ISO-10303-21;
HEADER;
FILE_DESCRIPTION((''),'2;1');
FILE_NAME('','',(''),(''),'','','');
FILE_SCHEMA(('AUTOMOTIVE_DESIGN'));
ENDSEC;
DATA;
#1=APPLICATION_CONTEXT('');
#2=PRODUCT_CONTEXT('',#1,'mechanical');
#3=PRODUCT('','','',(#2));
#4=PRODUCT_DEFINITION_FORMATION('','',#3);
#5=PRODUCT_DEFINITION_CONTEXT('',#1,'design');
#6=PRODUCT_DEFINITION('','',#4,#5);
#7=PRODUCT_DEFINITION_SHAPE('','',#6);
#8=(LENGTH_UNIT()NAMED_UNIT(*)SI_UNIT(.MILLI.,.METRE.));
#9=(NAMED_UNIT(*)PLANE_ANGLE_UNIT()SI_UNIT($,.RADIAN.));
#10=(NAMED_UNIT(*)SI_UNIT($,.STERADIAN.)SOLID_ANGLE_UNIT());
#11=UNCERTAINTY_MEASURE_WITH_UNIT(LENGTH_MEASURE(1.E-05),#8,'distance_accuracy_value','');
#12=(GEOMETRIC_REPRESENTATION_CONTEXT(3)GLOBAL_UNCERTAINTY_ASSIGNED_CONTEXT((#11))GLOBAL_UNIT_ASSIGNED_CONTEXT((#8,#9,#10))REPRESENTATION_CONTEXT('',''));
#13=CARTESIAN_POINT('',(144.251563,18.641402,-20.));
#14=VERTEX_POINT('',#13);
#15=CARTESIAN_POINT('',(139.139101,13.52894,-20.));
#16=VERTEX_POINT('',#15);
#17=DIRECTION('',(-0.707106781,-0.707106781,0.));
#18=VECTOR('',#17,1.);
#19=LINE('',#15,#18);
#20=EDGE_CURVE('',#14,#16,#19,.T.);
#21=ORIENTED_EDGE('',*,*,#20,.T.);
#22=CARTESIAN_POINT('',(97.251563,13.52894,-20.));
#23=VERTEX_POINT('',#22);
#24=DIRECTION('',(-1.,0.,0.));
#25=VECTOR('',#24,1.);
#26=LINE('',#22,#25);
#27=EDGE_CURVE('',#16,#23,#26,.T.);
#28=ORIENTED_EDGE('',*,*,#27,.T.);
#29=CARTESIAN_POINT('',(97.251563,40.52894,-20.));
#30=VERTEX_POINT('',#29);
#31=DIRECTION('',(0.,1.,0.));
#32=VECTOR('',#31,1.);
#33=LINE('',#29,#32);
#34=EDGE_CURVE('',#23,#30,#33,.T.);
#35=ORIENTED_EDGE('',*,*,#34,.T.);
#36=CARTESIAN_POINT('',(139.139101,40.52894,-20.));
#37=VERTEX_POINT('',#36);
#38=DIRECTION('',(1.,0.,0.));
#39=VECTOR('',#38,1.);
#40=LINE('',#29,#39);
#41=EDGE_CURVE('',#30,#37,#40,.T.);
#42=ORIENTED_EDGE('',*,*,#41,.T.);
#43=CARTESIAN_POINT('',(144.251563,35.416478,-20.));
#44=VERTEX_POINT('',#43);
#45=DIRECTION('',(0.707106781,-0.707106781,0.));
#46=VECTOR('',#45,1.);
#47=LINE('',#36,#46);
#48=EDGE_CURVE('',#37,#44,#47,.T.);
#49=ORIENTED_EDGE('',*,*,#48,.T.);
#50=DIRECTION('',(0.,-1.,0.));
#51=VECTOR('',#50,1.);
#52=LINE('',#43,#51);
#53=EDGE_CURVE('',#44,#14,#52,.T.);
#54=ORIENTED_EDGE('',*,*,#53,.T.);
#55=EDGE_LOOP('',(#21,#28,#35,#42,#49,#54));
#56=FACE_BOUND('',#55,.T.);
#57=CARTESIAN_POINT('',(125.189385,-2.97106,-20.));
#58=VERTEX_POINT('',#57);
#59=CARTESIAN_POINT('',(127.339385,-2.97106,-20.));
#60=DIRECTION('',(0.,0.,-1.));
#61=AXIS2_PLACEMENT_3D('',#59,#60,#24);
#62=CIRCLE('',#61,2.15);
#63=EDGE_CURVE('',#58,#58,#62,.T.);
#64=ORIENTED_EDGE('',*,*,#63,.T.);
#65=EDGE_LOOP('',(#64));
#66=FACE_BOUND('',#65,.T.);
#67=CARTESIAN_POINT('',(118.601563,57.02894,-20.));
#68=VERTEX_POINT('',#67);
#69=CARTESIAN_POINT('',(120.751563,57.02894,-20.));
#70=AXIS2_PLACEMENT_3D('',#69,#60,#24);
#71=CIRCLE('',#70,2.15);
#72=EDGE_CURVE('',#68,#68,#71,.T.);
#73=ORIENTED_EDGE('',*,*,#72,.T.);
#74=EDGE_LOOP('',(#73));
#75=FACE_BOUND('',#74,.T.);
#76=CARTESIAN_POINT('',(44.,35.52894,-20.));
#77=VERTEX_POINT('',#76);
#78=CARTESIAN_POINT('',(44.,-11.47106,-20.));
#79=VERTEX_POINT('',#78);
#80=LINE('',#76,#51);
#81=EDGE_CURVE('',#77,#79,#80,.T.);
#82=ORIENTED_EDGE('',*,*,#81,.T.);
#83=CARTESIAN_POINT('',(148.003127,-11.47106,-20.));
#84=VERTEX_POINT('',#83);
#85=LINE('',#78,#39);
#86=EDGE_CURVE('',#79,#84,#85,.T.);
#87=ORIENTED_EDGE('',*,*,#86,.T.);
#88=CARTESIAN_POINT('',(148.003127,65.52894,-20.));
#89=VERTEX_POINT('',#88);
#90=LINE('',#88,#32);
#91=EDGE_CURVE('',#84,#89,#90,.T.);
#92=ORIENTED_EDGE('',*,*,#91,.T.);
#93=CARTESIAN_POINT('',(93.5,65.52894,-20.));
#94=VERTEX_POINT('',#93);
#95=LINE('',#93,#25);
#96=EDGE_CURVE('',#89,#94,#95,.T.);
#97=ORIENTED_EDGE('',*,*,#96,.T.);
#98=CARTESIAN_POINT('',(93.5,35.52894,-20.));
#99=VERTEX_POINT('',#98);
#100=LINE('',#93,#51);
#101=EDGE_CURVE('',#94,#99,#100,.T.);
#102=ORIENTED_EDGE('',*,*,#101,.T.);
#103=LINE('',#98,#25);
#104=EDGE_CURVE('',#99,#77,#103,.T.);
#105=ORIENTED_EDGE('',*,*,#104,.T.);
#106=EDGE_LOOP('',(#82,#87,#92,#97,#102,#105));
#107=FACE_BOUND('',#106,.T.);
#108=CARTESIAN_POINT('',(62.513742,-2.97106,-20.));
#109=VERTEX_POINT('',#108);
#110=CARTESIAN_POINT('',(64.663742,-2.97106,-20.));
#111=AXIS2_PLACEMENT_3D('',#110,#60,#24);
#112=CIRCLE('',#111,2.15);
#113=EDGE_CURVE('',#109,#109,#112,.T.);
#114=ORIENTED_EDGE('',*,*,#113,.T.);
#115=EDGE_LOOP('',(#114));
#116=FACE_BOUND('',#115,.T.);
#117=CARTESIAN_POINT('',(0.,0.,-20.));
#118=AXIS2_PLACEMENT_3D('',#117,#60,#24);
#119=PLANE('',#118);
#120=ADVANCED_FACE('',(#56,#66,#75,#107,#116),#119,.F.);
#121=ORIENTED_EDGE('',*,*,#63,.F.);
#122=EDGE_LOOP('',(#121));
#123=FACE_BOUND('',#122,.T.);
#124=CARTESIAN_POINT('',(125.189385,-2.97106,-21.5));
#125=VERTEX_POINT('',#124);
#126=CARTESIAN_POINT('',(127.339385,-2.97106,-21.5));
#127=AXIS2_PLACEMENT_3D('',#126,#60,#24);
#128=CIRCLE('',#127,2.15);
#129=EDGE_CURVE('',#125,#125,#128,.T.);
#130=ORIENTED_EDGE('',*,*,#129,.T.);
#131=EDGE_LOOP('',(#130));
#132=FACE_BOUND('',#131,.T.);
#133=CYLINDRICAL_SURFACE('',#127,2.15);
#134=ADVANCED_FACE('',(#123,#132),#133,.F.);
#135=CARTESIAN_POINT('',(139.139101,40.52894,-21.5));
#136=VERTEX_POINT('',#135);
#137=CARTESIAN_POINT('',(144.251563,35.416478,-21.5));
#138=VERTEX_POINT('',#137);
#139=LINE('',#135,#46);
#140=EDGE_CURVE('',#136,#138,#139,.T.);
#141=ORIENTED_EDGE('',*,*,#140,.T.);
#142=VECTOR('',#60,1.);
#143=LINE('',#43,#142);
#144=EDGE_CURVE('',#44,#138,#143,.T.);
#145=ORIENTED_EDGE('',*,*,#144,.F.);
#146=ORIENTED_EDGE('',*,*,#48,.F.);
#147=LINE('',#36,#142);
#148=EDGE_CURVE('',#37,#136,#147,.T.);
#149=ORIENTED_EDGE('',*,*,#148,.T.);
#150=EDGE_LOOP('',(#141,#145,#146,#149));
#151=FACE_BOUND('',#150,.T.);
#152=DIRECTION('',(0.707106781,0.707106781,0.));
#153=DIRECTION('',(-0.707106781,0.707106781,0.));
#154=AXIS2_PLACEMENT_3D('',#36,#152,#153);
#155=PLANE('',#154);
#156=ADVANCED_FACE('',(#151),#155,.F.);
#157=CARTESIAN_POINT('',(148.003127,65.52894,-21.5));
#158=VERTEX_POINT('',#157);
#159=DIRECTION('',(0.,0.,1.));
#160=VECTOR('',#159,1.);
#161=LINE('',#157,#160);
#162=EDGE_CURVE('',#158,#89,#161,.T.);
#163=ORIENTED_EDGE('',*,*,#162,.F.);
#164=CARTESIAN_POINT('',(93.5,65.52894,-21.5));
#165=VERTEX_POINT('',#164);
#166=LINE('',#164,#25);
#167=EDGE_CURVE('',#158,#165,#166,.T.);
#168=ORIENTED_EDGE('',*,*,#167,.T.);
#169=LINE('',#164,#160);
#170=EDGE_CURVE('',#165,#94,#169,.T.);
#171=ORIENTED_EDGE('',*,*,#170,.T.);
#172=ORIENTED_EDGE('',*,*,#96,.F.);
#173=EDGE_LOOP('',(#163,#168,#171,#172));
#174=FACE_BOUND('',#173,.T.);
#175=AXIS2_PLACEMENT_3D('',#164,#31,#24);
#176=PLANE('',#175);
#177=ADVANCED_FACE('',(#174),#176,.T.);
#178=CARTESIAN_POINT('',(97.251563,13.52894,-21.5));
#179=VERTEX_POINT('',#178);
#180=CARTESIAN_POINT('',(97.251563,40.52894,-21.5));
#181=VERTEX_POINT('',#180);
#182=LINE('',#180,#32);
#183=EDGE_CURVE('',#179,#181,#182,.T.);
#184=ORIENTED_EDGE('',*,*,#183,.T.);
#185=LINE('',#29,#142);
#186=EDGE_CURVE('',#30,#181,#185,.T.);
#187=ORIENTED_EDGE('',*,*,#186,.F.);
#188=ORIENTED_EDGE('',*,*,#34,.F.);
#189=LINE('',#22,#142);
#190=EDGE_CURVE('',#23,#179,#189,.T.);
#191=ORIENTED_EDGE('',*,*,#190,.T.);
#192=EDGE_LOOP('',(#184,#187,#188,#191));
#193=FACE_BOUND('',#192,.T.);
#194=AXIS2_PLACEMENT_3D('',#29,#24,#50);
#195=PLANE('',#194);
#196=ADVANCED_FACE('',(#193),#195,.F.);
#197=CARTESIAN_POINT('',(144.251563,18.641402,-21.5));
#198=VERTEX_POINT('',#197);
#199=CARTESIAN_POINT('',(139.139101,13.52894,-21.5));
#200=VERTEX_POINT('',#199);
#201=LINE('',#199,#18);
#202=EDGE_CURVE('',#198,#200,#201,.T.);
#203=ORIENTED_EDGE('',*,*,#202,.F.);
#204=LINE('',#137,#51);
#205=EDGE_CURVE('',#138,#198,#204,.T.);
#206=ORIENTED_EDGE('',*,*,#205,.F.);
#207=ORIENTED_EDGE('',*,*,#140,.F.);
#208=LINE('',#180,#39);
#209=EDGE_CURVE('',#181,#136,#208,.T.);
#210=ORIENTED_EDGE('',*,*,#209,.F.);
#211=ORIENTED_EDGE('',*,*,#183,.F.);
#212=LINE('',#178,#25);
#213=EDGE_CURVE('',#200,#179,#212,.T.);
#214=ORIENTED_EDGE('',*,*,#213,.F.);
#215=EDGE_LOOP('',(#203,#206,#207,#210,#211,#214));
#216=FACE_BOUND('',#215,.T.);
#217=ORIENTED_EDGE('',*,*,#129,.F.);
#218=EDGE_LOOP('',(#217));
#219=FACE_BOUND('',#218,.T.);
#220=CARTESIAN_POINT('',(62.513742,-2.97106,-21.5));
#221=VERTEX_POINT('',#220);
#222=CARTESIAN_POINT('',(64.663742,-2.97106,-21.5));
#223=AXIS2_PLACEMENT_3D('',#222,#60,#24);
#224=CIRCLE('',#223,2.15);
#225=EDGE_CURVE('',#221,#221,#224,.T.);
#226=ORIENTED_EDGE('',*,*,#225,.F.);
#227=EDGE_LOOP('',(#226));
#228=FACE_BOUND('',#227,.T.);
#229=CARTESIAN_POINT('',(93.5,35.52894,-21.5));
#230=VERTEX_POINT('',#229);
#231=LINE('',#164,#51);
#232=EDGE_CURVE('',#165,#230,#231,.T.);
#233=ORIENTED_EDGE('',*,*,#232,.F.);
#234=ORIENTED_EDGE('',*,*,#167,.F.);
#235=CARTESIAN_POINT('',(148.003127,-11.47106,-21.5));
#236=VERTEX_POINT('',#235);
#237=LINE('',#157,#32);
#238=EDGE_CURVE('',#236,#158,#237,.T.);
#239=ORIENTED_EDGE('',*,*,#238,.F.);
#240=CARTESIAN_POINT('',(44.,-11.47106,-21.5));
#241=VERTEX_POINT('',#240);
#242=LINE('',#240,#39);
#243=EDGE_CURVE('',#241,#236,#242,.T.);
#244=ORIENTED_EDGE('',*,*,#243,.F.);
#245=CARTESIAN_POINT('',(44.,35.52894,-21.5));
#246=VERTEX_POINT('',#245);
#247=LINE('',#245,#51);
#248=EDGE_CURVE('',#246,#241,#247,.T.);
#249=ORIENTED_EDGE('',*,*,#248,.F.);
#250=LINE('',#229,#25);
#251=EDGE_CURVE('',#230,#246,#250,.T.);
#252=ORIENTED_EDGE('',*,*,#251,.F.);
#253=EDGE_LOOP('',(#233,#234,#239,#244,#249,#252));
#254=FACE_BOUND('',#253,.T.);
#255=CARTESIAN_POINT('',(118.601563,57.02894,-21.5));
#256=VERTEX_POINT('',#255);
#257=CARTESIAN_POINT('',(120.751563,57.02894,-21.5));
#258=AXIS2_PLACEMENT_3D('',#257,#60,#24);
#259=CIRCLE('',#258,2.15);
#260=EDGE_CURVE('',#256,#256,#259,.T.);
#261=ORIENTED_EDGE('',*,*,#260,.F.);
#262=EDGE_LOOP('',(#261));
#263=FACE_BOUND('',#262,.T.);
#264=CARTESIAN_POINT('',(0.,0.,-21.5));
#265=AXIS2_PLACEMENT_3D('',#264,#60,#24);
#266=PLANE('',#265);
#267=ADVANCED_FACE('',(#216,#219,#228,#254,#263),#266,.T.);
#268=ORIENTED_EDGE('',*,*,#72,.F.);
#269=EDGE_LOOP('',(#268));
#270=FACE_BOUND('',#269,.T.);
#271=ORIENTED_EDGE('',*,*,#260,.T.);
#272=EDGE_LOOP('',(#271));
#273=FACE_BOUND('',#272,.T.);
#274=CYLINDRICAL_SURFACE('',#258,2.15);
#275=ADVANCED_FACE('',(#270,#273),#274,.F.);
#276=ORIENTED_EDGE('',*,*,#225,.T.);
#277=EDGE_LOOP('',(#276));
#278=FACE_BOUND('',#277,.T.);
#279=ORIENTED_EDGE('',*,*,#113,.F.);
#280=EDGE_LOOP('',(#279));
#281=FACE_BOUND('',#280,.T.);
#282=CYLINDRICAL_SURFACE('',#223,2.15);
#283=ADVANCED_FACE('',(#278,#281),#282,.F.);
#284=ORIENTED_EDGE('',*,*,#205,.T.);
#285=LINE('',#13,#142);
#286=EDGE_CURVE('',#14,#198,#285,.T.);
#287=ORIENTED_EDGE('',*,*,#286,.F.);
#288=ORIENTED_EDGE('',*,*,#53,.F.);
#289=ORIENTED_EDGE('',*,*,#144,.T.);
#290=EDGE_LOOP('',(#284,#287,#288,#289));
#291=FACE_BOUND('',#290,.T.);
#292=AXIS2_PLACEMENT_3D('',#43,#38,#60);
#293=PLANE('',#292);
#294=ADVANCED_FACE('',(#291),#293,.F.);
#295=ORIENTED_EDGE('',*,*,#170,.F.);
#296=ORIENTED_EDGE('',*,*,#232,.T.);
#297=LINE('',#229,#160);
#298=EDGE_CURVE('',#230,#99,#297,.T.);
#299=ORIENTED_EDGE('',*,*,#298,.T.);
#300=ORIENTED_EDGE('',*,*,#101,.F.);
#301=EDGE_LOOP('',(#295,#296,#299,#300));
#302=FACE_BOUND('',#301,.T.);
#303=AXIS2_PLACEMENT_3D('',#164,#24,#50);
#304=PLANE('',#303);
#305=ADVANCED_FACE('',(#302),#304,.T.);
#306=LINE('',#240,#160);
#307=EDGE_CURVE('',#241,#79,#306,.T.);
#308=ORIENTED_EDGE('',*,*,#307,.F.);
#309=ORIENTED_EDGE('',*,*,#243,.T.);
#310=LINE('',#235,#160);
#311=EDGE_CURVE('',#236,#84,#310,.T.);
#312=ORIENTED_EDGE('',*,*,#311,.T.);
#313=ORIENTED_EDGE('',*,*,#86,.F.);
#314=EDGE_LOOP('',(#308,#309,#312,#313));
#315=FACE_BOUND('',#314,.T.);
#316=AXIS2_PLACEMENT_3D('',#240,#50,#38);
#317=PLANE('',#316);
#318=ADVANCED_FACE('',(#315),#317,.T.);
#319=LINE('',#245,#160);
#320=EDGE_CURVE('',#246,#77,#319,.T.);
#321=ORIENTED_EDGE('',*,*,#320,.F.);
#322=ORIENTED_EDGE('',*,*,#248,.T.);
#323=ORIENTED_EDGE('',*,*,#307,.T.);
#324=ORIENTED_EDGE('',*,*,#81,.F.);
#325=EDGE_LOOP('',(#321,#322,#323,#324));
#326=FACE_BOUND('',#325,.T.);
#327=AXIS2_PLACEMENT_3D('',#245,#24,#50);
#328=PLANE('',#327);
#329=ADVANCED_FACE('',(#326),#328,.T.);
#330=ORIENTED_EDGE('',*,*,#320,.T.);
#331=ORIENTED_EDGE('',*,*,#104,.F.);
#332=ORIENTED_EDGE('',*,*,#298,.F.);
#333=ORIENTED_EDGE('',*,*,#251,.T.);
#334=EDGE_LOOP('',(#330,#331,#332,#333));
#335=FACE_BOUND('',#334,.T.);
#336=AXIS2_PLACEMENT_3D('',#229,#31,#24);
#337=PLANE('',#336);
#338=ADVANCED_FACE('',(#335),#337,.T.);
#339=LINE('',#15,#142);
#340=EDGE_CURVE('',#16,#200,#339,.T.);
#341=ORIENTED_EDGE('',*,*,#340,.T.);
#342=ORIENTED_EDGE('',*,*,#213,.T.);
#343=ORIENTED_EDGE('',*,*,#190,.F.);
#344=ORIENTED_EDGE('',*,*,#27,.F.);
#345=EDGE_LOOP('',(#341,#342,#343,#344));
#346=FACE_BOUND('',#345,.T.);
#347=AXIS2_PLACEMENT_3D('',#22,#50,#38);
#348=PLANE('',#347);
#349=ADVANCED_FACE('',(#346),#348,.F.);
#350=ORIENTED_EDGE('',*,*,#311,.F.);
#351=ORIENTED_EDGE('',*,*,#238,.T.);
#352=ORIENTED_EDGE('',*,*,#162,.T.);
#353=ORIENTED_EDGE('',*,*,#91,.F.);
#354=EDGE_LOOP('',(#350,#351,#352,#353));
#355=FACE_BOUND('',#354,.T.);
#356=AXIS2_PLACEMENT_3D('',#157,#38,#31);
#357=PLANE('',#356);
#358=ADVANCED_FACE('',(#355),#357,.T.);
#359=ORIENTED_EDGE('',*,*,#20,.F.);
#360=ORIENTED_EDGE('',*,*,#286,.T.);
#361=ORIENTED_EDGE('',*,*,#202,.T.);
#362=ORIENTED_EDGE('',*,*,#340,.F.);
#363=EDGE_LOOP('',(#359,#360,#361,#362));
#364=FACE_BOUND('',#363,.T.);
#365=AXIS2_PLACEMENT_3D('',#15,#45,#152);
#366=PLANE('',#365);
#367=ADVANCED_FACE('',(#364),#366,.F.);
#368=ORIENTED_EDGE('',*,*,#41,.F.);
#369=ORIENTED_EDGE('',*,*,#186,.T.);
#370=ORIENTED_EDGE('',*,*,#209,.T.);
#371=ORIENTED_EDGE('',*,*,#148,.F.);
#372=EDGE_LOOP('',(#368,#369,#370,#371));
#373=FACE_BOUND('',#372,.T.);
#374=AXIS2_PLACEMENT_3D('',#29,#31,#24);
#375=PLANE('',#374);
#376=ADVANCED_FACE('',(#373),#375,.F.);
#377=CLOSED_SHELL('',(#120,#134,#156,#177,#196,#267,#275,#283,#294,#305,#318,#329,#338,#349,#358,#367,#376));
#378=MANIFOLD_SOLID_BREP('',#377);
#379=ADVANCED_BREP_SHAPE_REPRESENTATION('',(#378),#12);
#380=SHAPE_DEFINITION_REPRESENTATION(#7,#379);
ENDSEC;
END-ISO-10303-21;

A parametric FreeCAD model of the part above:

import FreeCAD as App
import Part
import Sketcher


def add_polygon(sketch, points):
    """Adds a closed chain of lines whose ends are joined by coincident constraints."""
    first, n = sketch.GeometryCount, len(points)
    for a, b in zip(points, points[1:] + points[:1]):
        sketch.addGeometry(Part.LineSegment(App.Vector(*a, 0), App.Vector(*b, 0)), False)
    for i in range(n):
        sketch.addConstraint(Sketcher.Constraint("Coincident", first + i, 2, first + (i + 1) % n, 1))

doc = App.newDocument("Part")
body = doc.addObject("PartDesign::Body", "Body")

# Sketch on XY plane
sketch1 = body.newObject("Sketcher::SketchObject", "Sketch")
sketch1.AttachmentSupport = (doc.getObject("XY_Plane"), [""])
sketch1.MapMode = "FlatFace"
sketch1.AttachmentOffset = App.Placement(App.Vector(0, 0, -20), App.Rotation())
add_polygon(sketch1, [(148, -11), (148, 66), (93, 66), (93, 36), (44, 36), (44, -11)])  # lines 0-5
sketch1.addConstraint([
    Sketcher.Constraint("Vertical", 0),
    Sketcher.Constraint("Horizontal", 1),
    Sketcher.Constraint("Vertical", 2),
    Sketcher.Constraint("Horizontal", 3),
    Sketcher.Constraint("Vertical", 4),
    Sketcher.Constraint("Horizontal", 5),
    Sketcher.Constraint("DistanceY", 0, 1, 0, 2, 77.0),
    Sketcher.Constraint("DistanceY", 2, 2, 2, 1, 30.0),
    Sketcher.Constraint("DistanceX", 3, 2, 3, 1, 49.5),
    Sketcher.Constraint("DistanceX", -1, 1, 3, 2, 44.0),
    Sketcher.Constraint("DistanceX", 1, 2, 1, 1, 54.503127),
    Sketcher.Constraint("DistanceY", -1, 1, 0, 2, 65.52894),
])
pad1 = body.newObject("PartDesign::Pad", "Pad")
pad1.Profile = sketch1
pad1.Length = 1.5
pad1.Reversed = True

# Sketch on XY plane
sketch2 = body.newObject("Sketcher::SketchObject", "Sketch001")
sketch2.AttachmentSupport = (doc.getObject("XY_Plane"), [""])
sketch2.MapMode = "FlatFace"
sketch2.AttachmentOffset = App.Placement(App.Vector(0, 0, -21.5), App.Rotation())
sketch2.addGeometry([
    Part.Circle(App.Vector(120.8, 57, 0), App.Vector(0, 0, 1), 2.1),
    Part.Circle(App.Vector(127.3, -3, 0), App.Vector(0, 0, 1), 2.1),
    Part.Circle(App.Vector(64.7, -3, 0), App.Vector(0, 0, 1), 2.1),
], False)
sketch2.addConstraint([
    Sketcher.Constraint("Equal", 0, 1),
    Sketcher.Constraint("Equal", 1, 2),
    Sketcher.Constraint("Horizontal", 1, 3, 2, 3),
    Sketcher.Constraint("Diameter", 0, 4.3),
    Sketcher.Constraint("DistanceY", 1, 3, 0, 3, 60.0),
    Sketcher.Constraint("DistanceY", -1, 1, 0, 3, 57.02894),
    Sketcher.Constraint("DistanceX", -1, 1, 2, 3, 64.663742),
    Sketcher.Constraint("DistanceX", 0, 3, 1, 3, 6.587822),
    Sketcher.Constraint("DistanceX", 2, 3, 0, 3, 56.087822),
])
doc.recompute()
hole = body.newObject("PartDesign::Hole", "Hole")
hole.Profile = sketch2
hole.ThreadType = "None"
hole.Diameter = 4.3
hole.DepthType = "Dimension"
hole.Depth = 24
hole.DrillPoint = "Flat"
hole.Reversed = True

# Sketch on XY plane
sketch3 = body.newObject("Sketcher::SketchObject", "Sketch002")
sketch3.AttachmentSupport = (doc.getObject("XY_Plane"), [""])
sketch3.MapMode = "FlatFace"
sketch3.AttachmentOffset = App.Placement(App.Vector(0, 0, -21.5), App.Rotation())
add_polygon(sketch3, [(97, 41), (139, 41), (144, 35), (144, 19), (139, 14), (97, 14)])  # lines 0-5
sketch3.addConstraint([
    Sketcher.Constraint("Horizontal", 0),
    Sketcher.Constraint("Vertical", 2),
    Sketcher.Constraint("Horizontal", 4),
    Sketcher.Constraint("Vertical", 5),
    Sketcher.Constraint("Perpendicular", 1, 3),
    Sketcher.Constraint("Vertical", 0, 2, 3, 2),
    Sketcher.Constraint("Equal", 1, 3),
    Sketcher.Constraint("DistanceY", 5, 1, 5, 2, 27.0),
    Sketcher.Constraint("DistanceX", 4, 2, 2, 2, 47.0),
    Sketcher.Constraint("DistanceX", 0, 1, 0, 2, 41.887538),
    Sketcher.Constraint("DistanceX", -1, 1, 0, 2, 139.139101),
    Sketcher.Constraint("DistanceY", -1, 1, 0, 2, 40.52894),
])
pocket1 = body.newObject("PartDesign::Pocket", "Pocket")
pocket1.Profile = sketch3
pocket1.Type = "ThroughAll"
pocket1.Reversed = True

doc.recompute()
